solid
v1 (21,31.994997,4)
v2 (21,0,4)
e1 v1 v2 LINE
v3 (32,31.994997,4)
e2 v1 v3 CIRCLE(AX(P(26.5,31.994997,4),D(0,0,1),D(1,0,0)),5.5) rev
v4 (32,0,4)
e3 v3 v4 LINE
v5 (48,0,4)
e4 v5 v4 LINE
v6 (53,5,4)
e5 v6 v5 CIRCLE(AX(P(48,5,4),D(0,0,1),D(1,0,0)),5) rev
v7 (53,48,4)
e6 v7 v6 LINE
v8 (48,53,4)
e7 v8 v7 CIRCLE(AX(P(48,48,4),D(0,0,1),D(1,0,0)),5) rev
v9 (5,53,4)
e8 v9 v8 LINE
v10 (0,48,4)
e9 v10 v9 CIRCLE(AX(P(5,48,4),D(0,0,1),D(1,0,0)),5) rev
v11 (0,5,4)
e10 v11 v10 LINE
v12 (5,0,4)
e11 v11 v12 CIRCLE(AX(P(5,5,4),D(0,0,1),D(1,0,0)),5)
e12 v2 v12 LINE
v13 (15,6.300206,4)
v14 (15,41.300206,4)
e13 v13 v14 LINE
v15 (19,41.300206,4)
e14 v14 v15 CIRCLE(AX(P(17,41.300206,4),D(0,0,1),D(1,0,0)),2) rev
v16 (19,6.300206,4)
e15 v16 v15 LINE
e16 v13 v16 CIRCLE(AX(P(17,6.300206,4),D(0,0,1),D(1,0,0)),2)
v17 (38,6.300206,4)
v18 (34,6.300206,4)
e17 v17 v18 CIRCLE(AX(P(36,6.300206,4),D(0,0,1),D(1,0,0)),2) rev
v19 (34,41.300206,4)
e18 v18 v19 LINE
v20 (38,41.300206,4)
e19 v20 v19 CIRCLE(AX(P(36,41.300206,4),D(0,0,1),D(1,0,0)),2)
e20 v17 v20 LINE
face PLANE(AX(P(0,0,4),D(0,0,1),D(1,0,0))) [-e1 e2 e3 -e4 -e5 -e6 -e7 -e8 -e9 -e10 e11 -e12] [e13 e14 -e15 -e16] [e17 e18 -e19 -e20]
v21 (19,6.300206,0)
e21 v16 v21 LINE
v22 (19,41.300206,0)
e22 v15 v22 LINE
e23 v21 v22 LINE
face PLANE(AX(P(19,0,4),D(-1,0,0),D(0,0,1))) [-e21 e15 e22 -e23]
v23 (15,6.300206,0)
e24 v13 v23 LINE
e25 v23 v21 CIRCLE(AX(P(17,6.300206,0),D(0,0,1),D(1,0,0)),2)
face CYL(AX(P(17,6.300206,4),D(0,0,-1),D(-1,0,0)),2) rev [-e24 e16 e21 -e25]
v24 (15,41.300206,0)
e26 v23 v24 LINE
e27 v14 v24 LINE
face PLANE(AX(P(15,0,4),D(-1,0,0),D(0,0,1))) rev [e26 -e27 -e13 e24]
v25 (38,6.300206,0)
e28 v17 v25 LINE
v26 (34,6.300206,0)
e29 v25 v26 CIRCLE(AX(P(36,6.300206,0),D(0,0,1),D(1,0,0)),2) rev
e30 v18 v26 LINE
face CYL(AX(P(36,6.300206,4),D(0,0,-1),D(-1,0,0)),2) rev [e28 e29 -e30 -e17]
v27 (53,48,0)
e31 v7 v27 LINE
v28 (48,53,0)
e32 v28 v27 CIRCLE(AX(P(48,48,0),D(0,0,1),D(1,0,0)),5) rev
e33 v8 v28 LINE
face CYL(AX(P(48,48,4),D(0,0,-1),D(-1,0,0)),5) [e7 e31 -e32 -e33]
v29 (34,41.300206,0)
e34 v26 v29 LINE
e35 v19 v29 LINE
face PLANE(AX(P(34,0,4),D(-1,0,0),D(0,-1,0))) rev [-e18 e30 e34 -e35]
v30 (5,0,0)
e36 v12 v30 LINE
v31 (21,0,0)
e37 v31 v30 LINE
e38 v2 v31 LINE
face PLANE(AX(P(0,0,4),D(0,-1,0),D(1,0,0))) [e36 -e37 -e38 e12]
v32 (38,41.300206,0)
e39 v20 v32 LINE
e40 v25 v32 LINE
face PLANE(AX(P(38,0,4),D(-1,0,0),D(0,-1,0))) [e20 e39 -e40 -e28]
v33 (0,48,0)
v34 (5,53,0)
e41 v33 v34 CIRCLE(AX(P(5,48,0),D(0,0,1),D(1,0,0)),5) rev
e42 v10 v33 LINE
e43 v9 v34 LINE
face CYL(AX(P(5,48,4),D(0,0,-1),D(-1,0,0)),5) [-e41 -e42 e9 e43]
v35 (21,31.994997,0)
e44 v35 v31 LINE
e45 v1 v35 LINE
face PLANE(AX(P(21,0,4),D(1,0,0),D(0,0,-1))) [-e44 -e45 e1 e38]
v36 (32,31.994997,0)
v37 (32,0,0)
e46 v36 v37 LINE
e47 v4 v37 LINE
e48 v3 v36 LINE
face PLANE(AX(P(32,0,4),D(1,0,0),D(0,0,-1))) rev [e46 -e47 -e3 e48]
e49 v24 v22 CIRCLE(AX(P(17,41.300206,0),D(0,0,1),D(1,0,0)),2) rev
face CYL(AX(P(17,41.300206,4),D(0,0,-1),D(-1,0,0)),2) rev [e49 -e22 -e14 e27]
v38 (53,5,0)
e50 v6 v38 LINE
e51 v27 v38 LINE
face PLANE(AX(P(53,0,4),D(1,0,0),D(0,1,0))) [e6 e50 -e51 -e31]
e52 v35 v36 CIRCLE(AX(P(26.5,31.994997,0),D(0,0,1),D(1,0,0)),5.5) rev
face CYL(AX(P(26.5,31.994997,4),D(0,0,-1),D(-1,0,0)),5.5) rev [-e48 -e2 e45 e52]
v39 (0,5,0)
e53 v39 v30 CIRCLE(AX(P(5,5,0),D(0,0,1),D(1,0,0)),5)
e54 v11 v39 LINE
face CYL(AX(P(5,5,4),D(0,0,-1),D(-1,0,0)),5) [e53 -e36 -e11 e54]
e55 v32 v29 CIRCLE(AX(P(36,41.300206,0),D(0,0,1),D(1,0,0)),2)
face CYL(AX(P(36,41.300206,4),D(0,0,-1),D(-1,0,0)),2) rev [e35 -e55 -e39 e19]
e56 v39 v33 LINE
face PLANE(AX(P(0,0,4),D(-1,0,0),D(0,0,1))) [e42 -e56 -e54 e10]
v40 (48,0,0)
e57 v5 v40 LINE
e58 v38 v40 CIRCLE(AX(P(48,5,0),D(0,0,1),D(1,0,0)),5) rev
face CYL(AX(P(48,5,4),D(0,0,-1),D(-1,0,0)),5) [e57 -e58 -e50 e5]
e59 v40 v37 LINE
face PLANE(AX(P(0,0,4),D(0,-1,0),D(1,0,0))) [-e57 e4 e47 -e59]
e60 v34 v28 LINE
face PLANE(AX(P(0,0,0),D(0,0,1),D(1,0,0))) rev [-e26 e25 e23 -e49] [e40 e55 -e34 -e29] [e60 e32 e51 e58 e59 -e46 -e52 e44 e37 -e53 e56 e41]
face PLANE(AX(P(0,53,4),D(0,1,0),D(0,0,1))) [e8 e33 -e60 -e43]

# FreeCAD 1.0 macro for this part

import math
import FreeCAD as App
import Part
import Sketcher
Q = App.Units.Quantity

doc = App.newDocument("Part")
body = doc.addObject("PartDesign::Body", "Body")

# Sketch on XY plane
sketch1 = body.newObject("Sketcher::SketchObject", "Sketch")
sketch1.AttachmentSupport = (doc.getObject("XY_Plane"), [""])
sketch1.MapMode = "FlatFace"
sketch1.addGeometry([
    Part.LineSegment(App.Vector(0, 48, 0), App.Vector(0, 5, 0)),  # 0
    Part.ArcOfCircle(Part.Circle(App.Vector(5, 5, 0), App.Vector(0, 0, 1), 5), math.radians(180), math.radians(270)),  # 1
    Part.LineSegment(App.Vector(5, 0, 0), App.Vector(21, 0, 0)),  # 2
    Part.LineSegment(App.Vector(21, 0, 0), App.Vector(21, 32, 0)),  # 3
    Part.ArcOfCircle(Part.Circle(App.Vector(26.5, 32, 0), App.Vector(0, 0, 1), 5.5), math.radians(0), math.radians(180)),  # 4
    Part.LineSegment(App.Vector(32, 32, 0), App.Vector(32, 0, 0)),  # 5
    Part.LineSegment(App.Vector(32, 0, 0), App.Vector(48, 0, 0)),  # 6
    Part.ArcOfCircle(Part.Circle(App.Vector(48, 5, 0), App.Vector(0, 0, 1), 5), math.radians(-90), math.radians(0)),  # 7
    Part.LineSegment(App.Vector(53, 5, 0), App.Vector(53, 48, 0)),  # 8
    Part.ArcOfCircle(Part.Circle(App.Vector(48, 48, 0), App.Vector(0, 0, 1), 5), math.radians(0), math.radians(90)),  # 9
    Part.LineSegment(App.Vector(48, 53, 0), App.Vector(5, 53, 0)),  # 10
    Part.ArcOfCircle(Part.Circle(App.Vector(5, 48, 0), App.Vector(0, 0, 1), 5), math.radians(90), math.radians(180)),  # 11
    Part.ArcOfCircle(Part.Circle(App.Vector(17, 41.3, 0), App.Vector(0, 0, 1), 2), math.radians(0), math.radians(180)),  # 12
    Part.LineSegment(App.Vector(19, 41.3, 0), App.Vector(19, 6.3, 0)),  # 13
    Part.ArcOfCircle(Part.Circle(App.Vector(17, 6.3, 0), App.Vector(0, 0, 1), 2), math.radians(180), math.radians(360)),  # 14
    Part.LineSegment(App.Vector(15, 6.3, 0), App.Vector(15, 41.3, 0)),  # 15
    Part.ArcOfCircle(Part.Circle(App.Vector(36, 41.3, 0), App.Vector(0, 0, 1), 2), math.radians(0), math.radians(180)),  # 16
    Part.LineSegment(App.Vector(38, 41.3, 0), App.Vector(38, 6.3, 0)),  # 17
    Part.ArcOfCircle(Part.Circle(App.Vector(36, 6.3, 0), App.Vector(0, 0, 1), 2), math.radians(180), math.radians(360)),  # 18
    Part.LineSegment(App.Vector(34, 6.3, 0), App.Vector(34, 41.3, 0)),  # 19
], False)
sketch1.addConstraint([
    Sketcher.Constraint("Tangent", 0, 2, 1, 1),
    Sketcher.Constraint("Tangent", 1, 2, 2, 1),
    Sketcher.Constraint("Coincident", 2, 2, 3, 1),
    Sketcher.Constraint("Tangent", 3, 2, 4, 2),
    Sketcher.Constraint("Tangent", 4, 1, 5, 1),
    Sketcher.Constraint("Coincident", 5, 2, 6, 1),
    Sketcher.Constraint("Tangent", 6, 2, 7, 1),
    Sketcher.Constraint("Tangent", 7, 2, 8, 1),
    Sketcher.Constraint("Tangent", 8, 2, 9, 1),
    Sketcher.Constraint("Tangent", 9, 2, 10, 1),
    Sketcher.Constraint("Tangent", 10, 2, 11, 1),
    Sketcher.Constraint("Tangent", 11, 2, 0, 1),
    Sketcher.Constraint("Tangent", 12, 1, 13, 1),
    Sketcher.Constraint("Tangent", 13, 2, 14, 2),
    Sketcher.Constraint("Tangent", 14, 1, 15, 1),
    Sketcher.Constraint("Tangent", 15, 2, 12, 2),
    Sketcher.Constraint("Tangent", 16, 1, 17, 1),
    Sketcher.Constraint("Tangent", 17, 2, 18, 2),
    Sketcher.Constraint("Tangent", 18, 1, 19, 1),
    Sketcher.Constraint("Tangent", 19, 2, 16, 2),
    Sketcher.Constraint("Vertical", 0),
    Sketcher.Constraint("Horizontal", 2),
    Sketcher.Constraint("Vertical", 3),
    Sketcher.Constraint("Vertical", 5),
    Sketcher.Constraint("Horizontal", 6),
    Sketcher.Constraint("Vertical", 8),
    Sketcher.Constraint("Horizontal", 10),
    Sketcher.Constraint("Vertical", 13),
    Sketcher.Constraint("Vertical", 15),
    Sketcher.Constraint("Vertical", 17),
    Sketcher.Constraint("Vertical", 19),
    Sketcher.Constraint("Equal", 1, 7),
    Sketcher.Constraint("Equal", 7, 9),
    Sketcher.Constraint("Equal", 9, 11),
    Sketcher.Constraint("Equal", 14, 16),
    Sketcher.Constraint("PointOnObject", 0, 2, -2),
    Sketcher.Constraint("PointOnObject", 1, 2, -1),
    Sketcher.Constraint("PointOnObject", 5, 2, -1),
    Sketcher.Constraint("Horizontal", 12, 3, 16, 3),
    Sketcher.Constraint("Horizontal", 14, 3, 18, 3),
    Sketcher.Constraint("Equal", 2, 6),
    Sketcher.Constraint("Equal", 10, 0),
    Sketcher.Constraint("Radius", 1, Q("5 mm")),
    Sketcher.Constraint("Radius", 12, Q("2 mm")),
    Sketcher.Constraint("Radius", 4, Q("5.5 mm")),
    Sketcher.Constraint("DistanceX", 2, 1, 2, 2, Q("16 mm")),
    Sketcher.Constraint("DistanceY", 13, 2, 13, 1, Q("35 mm")),
    Sketcher.Constraint("DistanceX", -1, 1, 12, 3, Q("17 mm")),
    Sketcher.Constraint("DistanceX", -1, 1, 16, 3, Q("36 mm")),
    Sketcher.Constraint("DistanceY", 3, 1, 3, 2, Q("31.994997 mm")),
    Sketcher.Constraint("DistanceY", 4, 3, 12, 3, Q("9.30521 mm")),
])
pad1 = body.newObject("PartDesign::Pad", "Pad")
pad1.Profile = sketch1
pad1.Length = 4

doc.recompute()
